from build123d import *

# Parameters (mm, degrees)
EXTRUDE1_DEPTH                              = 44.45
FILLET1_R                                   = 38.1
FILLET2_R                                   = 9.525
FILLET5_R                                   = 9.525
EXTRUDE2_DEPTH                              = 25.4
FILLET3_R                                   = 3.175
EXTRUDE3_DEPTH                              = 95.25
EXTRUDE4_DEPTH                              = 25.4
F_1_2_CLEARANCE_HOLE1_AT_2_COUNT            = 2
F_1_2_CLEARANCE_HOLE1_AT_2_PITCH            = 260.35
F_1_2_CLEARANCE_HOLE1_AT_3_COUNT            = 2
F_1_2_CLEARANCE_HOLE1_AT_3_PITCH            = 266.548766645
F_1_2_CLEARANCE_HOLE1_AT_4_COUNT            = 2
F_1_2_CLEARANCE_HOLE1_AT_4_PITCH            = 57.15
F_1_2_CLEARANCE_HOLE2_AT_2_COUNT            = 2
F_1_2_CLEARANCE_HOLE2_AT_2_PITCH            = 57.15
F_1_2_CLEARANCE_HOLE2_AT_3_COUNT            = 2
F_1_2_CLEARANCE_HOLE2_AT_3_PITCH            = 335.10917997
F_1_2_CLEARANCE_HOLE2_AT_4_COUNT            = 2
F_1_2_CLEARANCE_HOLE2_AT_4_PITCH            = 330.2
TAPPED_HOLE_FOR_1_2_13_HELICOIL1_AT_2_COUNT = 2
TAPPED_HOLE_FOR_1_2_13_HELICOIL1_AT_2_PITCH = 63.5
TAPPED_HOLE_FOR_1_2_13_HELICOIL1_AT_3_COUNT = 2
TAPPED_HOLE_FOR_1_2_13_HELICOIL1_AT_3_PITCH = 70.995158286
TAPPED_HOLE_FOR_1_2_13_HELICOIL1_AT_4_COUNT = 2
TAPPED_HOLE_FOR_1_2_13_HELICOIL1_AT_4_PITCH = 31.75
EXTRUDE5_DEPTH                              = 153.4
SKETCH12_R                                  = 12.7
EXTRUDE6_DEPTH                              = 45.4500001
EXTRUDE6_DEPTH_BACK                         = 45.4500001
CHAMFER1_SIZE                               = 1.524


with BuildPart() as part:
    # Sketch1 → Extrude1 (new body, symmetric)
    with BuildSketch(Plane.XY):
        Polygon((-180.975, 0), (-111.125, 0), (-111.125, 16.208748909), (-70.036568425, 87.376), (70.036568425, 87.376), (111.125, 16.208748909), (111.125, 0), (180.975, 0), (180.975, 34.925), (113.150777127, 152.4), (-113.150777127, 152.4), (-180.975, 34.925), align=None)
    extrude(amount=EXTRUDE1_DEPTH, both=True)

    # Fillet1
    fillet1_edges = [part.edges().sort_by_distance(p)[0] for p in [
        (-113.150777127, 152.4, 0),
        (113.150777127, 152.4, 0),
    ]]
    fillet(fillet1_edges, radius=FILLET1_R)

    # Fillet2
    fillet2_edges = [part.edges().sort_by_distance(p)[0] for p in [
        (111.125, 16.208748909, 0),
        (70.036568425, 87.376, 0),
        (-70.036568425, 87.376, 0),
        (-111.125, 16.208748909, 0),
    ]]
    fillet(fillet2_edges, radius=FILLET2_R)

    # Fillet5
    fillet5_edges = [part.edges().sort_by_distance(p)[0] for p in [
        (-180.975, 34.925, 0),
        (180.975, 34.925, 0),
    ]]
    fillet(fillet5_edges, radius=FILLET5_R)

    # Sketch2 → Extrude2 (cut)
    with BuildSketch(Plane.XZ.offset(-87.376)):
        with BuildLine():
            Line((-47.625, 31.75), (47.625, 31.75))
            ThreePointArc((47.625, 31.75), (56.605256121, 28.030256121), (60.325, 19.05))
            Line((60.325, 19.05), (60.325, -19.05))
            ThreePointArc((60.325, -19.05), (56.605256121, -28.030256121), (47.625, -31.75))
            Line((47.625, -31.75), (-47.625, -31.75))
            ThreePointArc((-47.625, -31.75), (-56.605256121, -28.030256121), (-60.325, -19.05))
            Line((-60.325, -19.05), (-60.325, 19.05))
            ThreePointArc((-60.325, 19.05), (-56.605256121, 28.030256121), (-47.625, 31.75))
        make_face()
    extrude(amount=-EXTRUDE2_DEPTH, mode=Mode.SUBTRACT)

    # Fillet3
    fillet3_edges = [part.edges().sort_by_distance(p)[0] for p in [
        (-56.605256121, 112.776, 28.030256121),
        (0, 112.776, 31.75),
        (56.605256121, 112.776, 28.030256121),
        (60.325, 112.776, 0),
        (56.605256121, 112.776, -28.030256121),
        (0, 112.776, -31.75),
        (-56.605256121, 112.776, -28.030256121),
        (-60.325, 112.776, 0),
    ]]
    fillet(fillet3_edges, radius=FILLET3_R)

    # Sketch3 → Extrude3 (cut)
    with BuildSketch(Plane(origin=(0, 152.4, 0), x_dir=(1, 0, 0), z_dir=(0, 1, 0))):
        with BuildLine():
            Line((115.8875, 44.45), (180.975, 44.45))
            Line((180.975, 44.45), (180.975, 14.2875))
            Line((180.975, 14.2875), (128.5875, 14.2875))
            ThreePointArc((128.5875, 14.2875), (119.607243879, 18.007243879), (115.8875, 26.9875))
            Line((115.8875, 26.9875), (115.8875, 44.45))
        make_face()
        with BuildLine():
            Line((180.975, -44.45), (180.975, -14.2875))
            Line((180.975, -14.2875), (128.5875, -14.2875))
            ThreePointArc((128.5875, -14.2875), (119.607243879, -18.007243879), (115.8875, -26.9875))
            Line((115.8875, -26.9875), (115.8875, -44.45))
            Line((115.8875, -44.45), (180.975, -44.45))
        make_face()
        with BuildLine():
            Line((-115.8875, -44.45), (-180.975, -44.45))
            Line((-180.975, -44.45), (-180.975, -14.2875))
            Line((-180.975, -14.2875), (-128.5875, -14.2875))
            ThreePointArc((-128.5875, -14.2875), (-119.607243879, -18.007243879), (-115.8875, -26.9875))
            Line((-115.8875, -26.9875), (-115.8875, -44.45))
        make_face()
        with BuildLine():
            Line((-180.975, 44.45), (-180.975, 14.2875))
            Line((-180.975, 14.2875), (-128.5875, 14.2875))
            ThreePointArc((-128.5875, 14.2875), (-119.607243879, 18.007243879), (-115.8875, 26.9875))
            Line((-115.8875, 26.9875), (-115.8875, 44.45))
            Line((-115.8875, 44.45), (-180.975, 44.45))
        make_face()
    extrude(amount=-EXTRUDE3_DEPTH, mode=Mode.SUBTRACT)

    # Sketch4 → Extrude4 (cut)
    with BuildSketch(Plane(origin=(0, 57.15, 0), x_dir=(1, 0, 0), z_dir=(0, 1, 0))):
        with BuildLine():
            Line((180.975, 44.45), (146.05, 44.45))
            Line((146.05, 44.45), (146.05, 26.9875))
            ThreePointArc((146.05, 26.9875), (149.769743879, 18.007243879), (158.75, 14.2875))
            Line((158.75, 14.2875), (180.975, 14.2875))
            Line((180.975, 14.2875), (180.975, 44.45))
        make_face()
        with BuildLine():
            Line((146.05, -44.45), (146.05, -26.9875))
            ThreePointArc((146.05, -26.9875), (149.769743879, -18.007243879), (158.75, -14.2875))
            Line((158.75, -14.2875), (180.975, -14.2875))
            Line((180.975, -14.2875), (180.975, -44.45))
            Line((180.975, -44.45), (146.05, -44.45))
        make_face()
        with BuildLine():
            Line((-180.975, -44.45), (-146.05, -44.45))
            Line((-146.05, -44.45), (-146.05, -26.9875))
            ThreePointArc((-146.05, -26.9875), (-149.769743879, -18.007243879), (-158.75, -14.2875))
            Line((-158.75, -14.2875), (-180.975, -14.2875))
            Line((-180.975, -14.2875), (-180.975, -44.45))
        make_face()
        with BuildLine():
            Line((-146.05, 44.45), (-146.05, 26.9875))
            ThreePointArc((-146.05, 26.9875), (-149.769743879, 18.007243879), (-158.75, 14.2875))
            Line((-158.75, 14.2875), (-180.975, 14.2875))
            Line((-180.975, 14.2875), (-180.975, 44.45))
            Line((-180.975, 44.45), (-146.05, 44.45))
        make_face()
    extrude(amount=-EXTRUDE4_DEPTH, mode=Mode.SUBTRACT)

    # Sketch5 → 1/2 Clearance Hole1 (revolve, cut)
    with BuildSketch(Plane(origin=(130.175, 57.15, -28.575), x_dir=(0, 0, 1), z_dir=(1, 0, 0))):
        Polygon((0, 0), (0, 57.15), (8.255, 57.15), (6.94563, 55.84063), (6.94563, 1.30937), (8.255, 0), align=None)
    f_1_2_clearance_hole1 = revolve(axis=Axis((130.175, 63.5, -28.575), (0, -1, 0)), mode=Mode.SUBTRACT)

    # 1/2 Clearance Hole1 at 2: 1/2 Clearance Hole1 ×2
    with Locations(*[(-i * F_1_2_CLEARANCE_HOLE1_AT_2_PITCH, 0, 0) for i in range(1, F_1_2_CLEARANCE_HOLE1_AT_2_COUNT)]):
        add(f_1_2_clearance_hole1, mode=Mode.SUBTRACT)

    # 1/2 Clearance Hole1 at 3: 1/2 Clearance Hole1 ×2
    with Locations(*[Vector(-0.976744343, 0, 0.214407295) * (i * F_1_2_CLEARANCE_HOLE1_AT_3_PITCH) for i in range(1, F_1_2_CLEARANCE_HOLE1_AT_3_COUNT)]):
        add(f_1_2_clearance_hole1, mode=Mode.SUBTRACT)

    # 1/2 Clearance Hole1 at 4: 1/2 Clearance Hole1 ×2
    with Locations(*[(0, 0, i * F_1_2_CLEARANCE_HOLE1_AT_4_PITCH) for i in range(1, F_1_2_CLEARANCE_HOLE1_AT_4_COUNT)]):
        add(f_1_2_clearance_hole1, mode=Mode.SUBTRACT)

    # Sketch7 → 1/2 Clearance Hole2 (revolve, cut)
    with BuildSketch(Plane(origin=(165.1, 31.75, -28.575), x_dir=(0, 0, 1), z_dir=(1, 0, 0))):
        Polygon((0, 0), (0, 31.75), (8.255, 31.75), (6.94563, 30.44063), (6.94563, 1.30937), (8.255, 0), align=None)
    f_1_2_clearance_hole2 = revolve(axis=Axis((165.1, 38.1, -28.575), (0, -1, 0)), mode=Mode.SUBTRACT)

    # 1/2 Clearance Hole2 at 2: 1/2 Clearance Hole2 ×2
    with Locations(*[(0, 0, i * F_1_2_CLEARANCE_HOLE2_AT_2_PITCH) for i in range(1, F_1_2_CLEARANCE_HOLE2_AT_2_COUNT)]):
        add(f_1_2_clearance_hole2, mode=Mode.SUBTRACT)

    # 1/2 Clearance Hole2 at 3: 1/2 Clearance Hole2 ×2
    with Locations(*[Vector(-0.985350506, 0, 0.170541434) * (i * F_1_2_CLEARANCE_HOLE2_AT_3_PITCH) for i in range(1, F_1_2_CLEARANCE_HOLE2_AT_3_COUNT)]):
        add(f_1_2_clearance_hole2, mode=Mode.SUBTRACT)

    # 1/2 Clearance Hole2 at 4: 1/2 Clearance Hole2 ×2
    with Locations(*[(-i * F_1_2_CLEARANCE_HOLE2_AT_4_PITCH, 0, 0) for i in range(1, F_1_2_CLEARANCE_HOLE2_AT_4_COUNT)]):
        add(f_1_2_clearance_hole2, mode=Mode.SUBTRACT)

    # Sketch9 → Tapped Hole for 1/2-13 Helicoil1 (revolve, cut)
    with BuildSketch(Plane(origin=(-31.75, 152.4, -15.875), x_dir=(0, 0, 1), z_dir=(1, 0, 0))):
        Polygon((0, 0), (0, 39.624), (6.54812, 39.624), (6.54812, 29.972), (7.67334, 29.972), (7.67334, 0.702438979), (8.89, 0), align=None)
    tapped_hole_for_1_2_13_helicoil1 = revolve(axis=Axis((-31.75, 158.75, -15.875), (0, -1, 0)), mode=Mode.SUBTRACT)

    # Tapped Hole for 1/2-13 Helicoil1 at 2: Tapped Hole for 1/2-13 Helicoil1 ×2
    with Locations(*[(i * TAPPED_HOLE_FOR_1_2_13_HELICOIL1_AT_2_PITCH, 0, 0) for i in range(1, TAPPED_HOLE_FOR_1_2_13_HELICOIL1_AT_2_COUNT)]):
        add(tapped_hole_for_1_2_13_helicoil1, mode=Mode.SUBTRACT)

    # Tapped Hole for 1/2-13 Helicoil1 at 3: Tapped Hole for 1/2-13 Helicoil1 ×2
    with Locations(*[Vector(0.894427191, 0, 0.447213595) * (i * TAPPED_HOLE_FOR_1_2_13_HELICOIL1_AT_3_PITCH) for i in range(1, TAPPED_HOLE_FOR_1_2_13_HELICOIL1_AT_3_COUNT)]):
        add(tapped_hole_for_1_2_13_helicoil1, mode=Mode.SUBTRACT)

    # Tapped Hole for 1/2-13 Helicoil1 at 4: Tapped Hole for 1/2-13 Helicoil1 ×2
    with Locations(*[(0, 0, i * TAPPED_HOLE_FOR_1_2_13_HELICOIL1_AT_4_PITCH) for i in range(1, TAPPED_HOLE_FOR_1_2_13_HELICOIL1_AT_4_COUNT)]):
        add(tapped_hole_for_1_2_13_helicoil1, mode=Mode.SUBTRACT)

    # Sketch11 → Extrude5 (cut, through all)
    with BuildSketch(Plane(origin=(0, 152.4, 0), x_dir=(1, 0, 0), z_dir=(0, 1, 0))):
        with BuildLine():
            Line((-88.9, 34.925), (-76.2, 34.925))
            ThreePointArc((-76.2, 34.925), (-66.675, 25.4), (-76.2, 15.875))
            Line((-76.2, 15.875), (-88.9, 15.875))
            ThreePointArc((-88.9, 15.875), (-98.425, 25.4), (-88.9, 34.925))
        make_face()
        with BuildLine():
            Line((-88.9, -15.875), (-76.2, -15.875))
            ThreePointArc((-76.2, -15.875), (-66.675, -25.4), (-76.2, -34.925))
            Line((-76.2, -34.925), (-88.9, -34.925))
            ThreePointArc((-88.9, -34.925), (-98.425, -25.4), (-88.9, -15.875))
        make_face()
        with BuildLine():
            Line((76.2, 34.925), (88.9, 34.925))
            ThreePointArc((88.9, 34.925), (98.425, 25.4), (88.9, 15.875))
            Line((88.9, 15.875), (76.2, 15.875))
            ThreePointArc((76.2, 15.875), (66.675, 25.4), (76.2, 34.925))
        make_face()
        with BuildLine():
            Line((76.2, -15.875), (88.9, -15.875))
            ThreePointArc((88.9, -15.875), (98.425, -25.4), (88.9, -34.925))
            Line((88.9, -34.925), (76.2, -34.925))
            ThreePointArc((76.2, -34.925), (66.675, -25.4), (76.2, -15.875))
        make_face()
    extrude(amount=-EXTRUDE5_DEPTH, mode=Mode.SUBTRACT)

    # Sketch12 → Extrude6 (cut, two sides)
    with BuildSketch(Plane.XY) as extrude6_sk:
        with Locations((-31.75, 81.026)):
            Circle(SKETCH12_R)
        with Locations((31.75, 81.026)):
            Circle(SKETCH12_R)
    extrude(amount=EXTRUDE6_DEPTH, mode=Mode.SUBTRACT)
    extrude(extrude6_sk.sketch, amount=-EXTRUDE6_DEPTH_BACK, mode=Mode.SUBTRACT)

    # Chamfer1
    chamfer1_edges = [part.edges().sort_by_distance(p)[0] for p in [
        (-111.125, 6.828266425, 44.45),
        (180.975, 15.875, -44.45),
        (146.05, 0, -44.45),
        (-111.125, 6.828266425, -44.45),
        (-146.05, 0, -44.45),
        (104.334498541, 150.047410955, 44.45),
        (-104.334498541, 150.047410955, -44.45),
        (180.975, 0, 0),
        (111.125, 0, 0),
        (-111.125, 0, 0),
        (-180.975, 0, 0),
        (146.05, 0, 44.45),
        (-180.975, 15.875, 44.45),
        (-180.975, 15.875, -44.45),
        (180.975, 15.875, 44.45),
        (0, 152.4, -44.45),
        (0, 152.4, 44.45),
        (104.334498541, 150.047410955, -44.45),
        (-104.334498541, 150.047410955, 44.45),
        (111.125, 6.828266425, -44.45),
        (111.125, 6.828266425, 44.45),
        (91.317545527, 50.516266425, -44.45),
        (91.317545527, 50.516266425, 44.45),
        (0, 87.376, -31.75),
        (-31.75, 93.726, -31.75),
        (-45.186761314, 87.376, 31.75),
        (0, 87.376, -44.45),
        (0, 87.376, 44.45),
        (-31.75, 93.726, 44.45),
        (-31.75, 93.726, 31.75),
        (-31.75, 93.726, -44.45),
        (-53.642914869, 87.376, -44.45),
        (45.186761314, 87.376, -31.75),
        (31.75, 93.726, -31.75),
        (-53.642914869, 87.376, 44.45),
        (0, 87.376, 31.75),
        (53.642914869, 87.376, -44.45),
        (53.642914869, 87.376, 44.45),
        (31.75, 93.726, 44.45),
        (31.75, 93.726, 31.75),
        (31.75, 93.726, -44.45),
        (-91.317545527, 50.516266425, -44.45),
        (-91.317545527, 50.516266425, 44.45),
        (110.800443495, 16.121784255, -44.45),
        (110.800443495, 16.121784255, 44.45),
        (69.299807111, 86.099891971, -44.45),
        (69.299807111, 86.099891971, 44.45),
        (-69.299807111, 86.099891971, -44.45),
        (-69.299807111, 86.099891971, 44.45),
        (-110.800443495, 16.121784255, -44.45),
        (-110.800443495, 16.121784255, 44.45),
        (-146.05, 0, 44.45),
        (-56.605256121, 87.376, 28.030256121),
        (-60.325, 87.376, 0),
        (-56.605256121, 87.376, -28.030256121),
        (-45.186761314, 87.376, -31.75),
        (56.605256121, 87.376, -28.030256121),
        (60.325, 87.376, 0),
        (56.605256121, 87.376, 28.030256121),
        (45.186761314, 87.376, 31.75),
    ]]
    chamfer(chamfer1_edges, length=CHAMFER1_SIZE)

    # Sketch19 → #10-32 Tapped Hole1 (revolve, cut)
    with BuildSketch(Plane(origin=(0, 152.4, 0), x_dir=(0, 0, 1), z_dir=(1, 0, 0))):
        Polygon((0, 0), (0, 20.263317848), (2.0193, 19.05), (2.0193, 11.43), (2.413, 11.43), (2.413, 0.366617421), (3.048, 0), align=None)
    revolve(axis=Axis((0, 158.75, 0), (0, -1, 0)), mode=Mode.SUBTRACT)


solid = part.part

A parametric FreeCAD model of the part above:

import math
import FreeCAD as App
import Part
import Sketcher

V = App.Vector
Q = App.Units.Quantity


def edges_at(feature, points):
    """Names of the edges that pass closest to the given points."""
    edges = feature.Shape.Edges
    near = lambda p: min(range(len(edges)), key=lambda i: edges[i].distToShape(Part.Vertex(*p))[0])
    return sorted({f"Edge{near(p) + 1}" for p in points})


def add_polygon(sketch, points):
    """Adds a closed chain of lines whose ends are joined by coincident constraints."""
    first, n = sketch.GeometryCount, len(points)
    for a, b in zip(points, points[1:] + points[:1]):
        sketch.addGeometry(Part.LineSegment(App.Vector(*a, 0), App.Vector(*b, 0)), False)
    for i in range(n):
        sketch.addConstraint(Sketcher.Constraint("Coincident", first + i, 2, first + (i + 1) % n, 1))

doc = App.newDocument("Part")
body = doc.addObject("PartDesign::Body", "Body")

# Sketch on XY plane
sketch1 = doc.addObject("Sketcher::SketchObject", "Sketch")
body.addObject(sketch1)
sketch1.AttachmentSupport = (doc.XY_Plane, [""])
sketch1.MapMode = "FlatFace"
add_polygon(sketch1, [(-181, 0), (-111, 0), (-111, 16), (-70, 87), (70, 87), (111, 16), (111, 0), (181, 0), (181, 35), (113, 152), (-113, 152), (-181, 35)])  # lines 0-11
sketch1.addConstraint([
    Sketcher.Constraint("Horizontal", 0),
    Sketcher.Constraint("Vertical", 1),
    Sketcher.Constraint("Horizontal", 3),
    Sketcher.Constraint("Vertical", 5),
    Sketcher.Constraint("Horizontal", 6),
    Sketcher.Constraint("Vertical", 7),
    Sketcher.Constraint("Horizontal", 9),
    Sketcher.Constraint("Vertical", 11),
    Sketcher.Constraint("Symmetric", 0, 2, 5, 2, -1, 1),
    Sketcher.Constraint("Symmetric", 7, 2, 10, 2, -2),
    Sketcher.Constraint("PointOnObject", 0, 2, -1),
    Sketcher.Constraint("Parallel", 4, 8),
    Sketcher.Constraint("Parallel", 2, 10),
    Sketcher.Constraint("Horizontal", 1, 2, 4, 2),
    Sketcher.Constraint("Equal", 2, 4),
    Sketcher.Constraint("DistanceY", -1, 1, 8, 2, Q("6 in")),
    Sketcher.Constraint("Angle", 2, Q("60 deg")),
    Sketcher.Constraint("DistanceX", 0, 1, 0, 2, Q("2.75 in")),
    Sketcher.Constraint("DistanceX", 0, 2, 6, 2, Q("11.5 in")),
    Sketcher.Constraint("DistanceY", 7, 1, 7, 2, Q("1.375 in")),
    Sketcher.Constraint("DistanceY", -1, 1, 2, 2, Q("3.44 in")),
    Sketcher.Constraint("DistanceY", 1, 1, 1, 2, Q("16.208749 mm")),
])
pad1 = doc.addObject("PartDesign::Pad", "Pad")
body.addObject(pad1)
pad1.Profile = sketch1
pad1.Length = Q("3.5 in")
pad1.Midplane = True
doc.recompute()

fillet = doc.addObject("PartDesign::Fillet", "Fillet")
body.addObject(fillet)
fillet.Base = (pad1, edges_at(pad1, [(-113.151, 152.4, 0), (113.151, 152.4, 0)]))
fillet.Radius = Q("1.5 in")
doc.recompute()

fillet2 = doc.addObject("PartDesign::Fillet", "Fillet001")
body.addObject(fillet2)
fillet2.Base = (fillet, edges_at(fillet, [
    (111.125, 16.209, 0),
    (70.037, 87.376, 0),
    (-70.037, 87.376, 0),
    (-111.125, 16.209, 0),
]))
fillet2.Radius = Q("0.375 in")
doc.recompute()

fillet3 = doc.addObject("PartDesign::Fillet", "Fillet002")
body.addObject(fillet3)
fillet3.Base = (fillet2, edges_at(fillet2, [(-180.975, 34.925, 0), (180.975, 34.925, 0)]))
fillet3.Radius = Q("0.375 in")

# Sketch on XZ plane
sketch2 = doc.addObject("Sketcher::SketchObject", "Sketch001")
body.addObject(sketch2)
sketch2.AttachmentSupport = (doc.XZ_Plane, [""])
sketch2.MapMode = "FlatFace"
sketch2.AttachmentOffset = App.Placement(V(0, 0, -3.44 * 25.4), App.Rotation())
sketch2.addGeometry([
    Part.LineSegment(V(48, 32, 0), V(-48, 32, 0)),  # 0
    Part.ArcOfCircle(Part.Circle(V(-48, 19, 0), V(0, 0, 1), 13), math.radians(90), math.radians(180)),  # 1
    Part.LineSegment(V(-60, 19, 0), V(-60, -19, 0)),  # 2
    Part.ArcOfCircle(Part.Circle(V(-48, -19, 0), V(0, 0, 1), 13), math.radians(180), math.radians(270)),  # 3
    Part.LineSegment(V(-48, -32, 0), V(48, -32, 0)),  # 4
    Part.ArcOfCircle(Part.Circle(V(48, -19, 0), V(0, 0, 1), 13), math.radians(-90), math.radians(0)),  # 5
    Part.LineSegment(V(60, -19, 0), V(60, 19, 0)),  # 6
    Part.ArcOfCircle(Part.Circle(V(48, 19, 0), V(0, 0, 1), 13), math.radians(0), math.radians(90)),  # 7
], False)
sketch2.addConstraint([
    Sketcher.Constraint("Tangent", 0, 2, 1, 1),
    Sketcher.Constraint("Tangent", 1, 2, 2, 1),
    Sketcher.Constraint("Tangent", 2, 2, 3, 1),
    Sketcher.Constraint("Tangent", 3, 2, 4, 1),
    Sketcher.Constraint("Tangent", 4, 2, 5, 1),
    Sketcher.Constraint("Tangent", 5, 2, 6, 1),
    Sketcher.Constraint("Tangent", 6, 2, 7, 1),
    Sketcher.Constraint("Tangent", 7, 2, 0, 1),
    Sketcher.Constraint("Horizontal", 0),
    Sketcher.Constraint("Vertical", 2),
    Sketcher.Constraint("Horizontal", 4),
    Sketcher.Constraint("Vertical", 6),
    Sketcher.Constraint("Equal", 1, 3),
    Sketcher.Constraint("Equal", 3, 5),
    Sketcher.Constraint("Equal", 5, 7),
    Sketcher.Constraint("Symmetric", 1, 3, 5, 3, -1, 1),
    Sketcher.Constraint("Radius", 1, Q("0.5 in")),
    Sketcher.Constraint("DistanceY", 2, 2, 2, 1, Q("1.5 in")),
    Sketcher.Constraint("DistanceX", 0, 2, 0, 1, Q("3.75 in")),
])
pocket1 = doc.addObject("PartDesign::Pocket", "Pocket")
body.addObject(pocket1)
pocket1.Profile = sketch2
pocket1.Length = Q("1 in")
doc.recompute()

fillet4 = doc.addObject("PartDesign::Fillet", "Fillet003")
body.addObject(fillet4)
fillet4.Base = (pocket1, edges_at(pocket1, [
    (-56.605, 112.776, 28.03),
    (0, 112.776, 31.75),
    (56.605, 112.776, 28.03),
    (60.325, 112.776, 0),
    (56.605, 112.776, -28.03),
    (0, 112.776, -31.75),
    (-56.605, 112.776, -28.03),
    (-60.325, 112.776, 0),
]))
fillet4.Radius = Q("0.125 in")

# Sketch on XZ plane
sketch3 = doc.addObject("Sketcher::SketchObject", "Sketch002")
body.addObject(sketch3)
sketch3.AttachmentSupport = (doc.XZ_Plane, [""])
sketch3.MapMode = "FlatFace"
sketch3.AttachmentOffset = App.Placement(V(0, 0, -6 * 25.4), App.Rotation())
sketch3.addGeometry([
    Part.LineSegment(V(181, -44, 0), V(116, -44, 0)),  # 0
    Part.LineSegment(V(116, -44, 0), V(116, -27, 0)),  # 1
    Part.ArcOfCircle(Part.Circle(V(129, -27, 0), V(0, 0, 1), 13), math.radians(90), math.radians(180)),  # 2
    Part.LineSegment(V(129, -14, 0), V(181, -14, 0)),  # 3
    Part.LineSegment(V(181, -14, 0), V(181, -44, 0)),  # 4
    Part.LineSegment(V(181, 44, 0), V(181, 14, 0)),  # 5
    Part.LineSegment(V(181, 14, 0), V(129, 14, 0)),  # 6
    Part.ArcOfCircle(Part.Circle(V(129, 27, 0), V(0, 0, 1), 13), math.radians(180), math.radians(270)),  # 7
    Part.LineSegment(V(116, 27, 0), V(116, 44, 0)),  # 8
    Part.LineSegment(V(116, 44, 0), V(181, 44, 0)),  # 9
    Part.LineSegment(V(-181, 44, 0), V(-116, 44, 0)),  # 10
    Part.LineSegment(V(-116, 44, 0), V(-116, 27, 0)),  # 11
    Part.ArcOfCircle(Part.Circle(V(-129, 27, 0), V(0, 0, 1), 13), math.radians(-90), math.radians(0)),  # 12
    Part.LineSegment(V(-129, 14, 0), V(-181, 14, 0)),  # 13
    Part.LineSegment(V(-181, 14, 0), V(-181, 44, 0)),  # 14
    Part.LineSegment(V(-181, -44, 0), V(-181, -14, 0)),  # 15
    Part.LineSegment(V(-181, -14, 0), V(-129, -14, 0)),  # 16
    Part.ArcOfCircle(Part.Circle(V(-129, -27, 0), V(0, 0, 1), 13), math.radians(0), math.radians(90)),  # 17
    Part.LineSegment(V(-116, -27, 0), V(-116, -44, 0)),  # 18
    Part.LineSegment(V(-116, -44, 0), V(-181, -44, 0)),  # 19
], False)
sketch3.addConstraint([
    Sketcher.Constraint("Coincident", 0, 2, 1, 1),
    Sketcher.Constraint("Tangent", 1, 2, 2, 2),
    Sketcher.Constraint("Tangent", 2, 1, 3, 1),
    Sketcher.Constraint("Coincident", 3, 2, 4, 1),
    Sketcher.Constraint("Coincident", 4, 2, 0, 1),
    Sketcher.Constraint("Coincident", 5, 2, 6, 1),
    Sketcher.Constraint("Tangent", 6, 2, 7, 2),
    Sketcher.Constraint("Tangent", 7, 1, 8, 1),
    Sketcher.Constraint("Coincident", 8, 2, 9, 1),
    Sketcher.Constraint("Coincident", 9, 2, 5, 1),
    Sketcher.Constraint("Coincident", 10, 2, 11, 1),
    Sketcher.Constraint("Tangent", 11, 2, 12, 2),
    Sketcher.Constraint("Tangent", 12, 1, 13, 1),
    Sketcher.Constraint("Coincident", 13, 2, 14, 1),
    Sketcher.Constraint("Coincident", 14, 2, 10, 1),
    Sketcher.Constraint("Coincident", 15, 2, 16, 1),
    Sketcher.Constraint("Tangent", 16, 2, 17, 2),
    Sketcher.Constraint("Tangent", 17, 1, 18, 1),
    Sketcher.Constraint("Coincident", 18, 2, 19, 1),
    Sketcher.Constraint("Coincident", 19, 2, 15, 1),
    Sketcher.Constraint("Horizontal", 0),
    Sketcher.Constraint("Vertical", 1),
    Sketcher.Constraint("Horizontal", 3),
    Sketcher.Constraint("Vertical", 4),
    Sketcher.Constraint("Vertical", 5),
    Sketcher.Constraint("Horizontal", 6),
    Sketcher.Constraint("Vertical", 8),
    Sketcher.Constraint("Horizontal", 9),
    Sketcher.Constraint("Horizontal", 10),
    Sketcher.Constraint("Vertical", 11),
    Sketcher.Constraint("Horizontal", 13),
    Sketcher.Constraint("Vertical", 14),
    Sketcher.Constraint("Vertical", 15),
    Sketcher.Constraint("Horizontal", 16),
    Sketcher.Constraint("Vertical", 18),
    Sketcher.Constraint("Horizontal", 19),
    Sketcher.Constraint("Equal", 2, 7),
    Sketcher.Constraint("Equal", 7, 12),
    Sketcher.Constraint("Equal", 12, 17),
    Sketcher.Constraint("Symmetric", 2, 3, 12, 3, -1, 1),
    Sketcher.Constraint("Symmetric", 7, 3, 17, 3, -1, 1),
    Sketcher.Constraint("Symmetric", 4, 2, 14, 2, -1, 1),
    Sketcher.Constraint("Symmetric", 9, 2, 19, 2, -1, 1),
    Sketcher.Constraint("Symmetric", 7, 3, 12, 3, -2),
    Sketcher.Constraint("Symmetric", 9, 2, 14, 2, -2),
    Sketcher.Constraint("Radius", 2, Q("0.5 in")),
    Sketcher.Constraint("DistanceX", 0, 2, 0, 1, Q("2.5625 in")),
    Sketcher.Constraint("DistanceY", 1, 1, 1, 2, Q("0.6875 in")),
    Sketcher.Constraint("DistanceY", 0, 2, -1, 1, Q("1.75 in")),
    Sketcher.Constraint("DistanceX", -1, 1, 2, 3, Q("5.0625 in")),
])
pocket2 = doc.addObject("PartDesign::Pocket", "Pocket001")
body.addObject(pocket2)
pocket2.Profile = sketch3
pocket2.Length = Q("3.75 in")
pocket2.Reversed = True

# Sketch on XZ plane
sketch4 = doc.addObject("Sketcher::SketchObject", "Sketch003")
body.addObject(sketch4)
sketch4.AttachmentSupport = (doc.XZ_Plane, [""])
sketch4.MapMode = "FlatFace"
sketch4.AttachmentOffset = App.Placement(V(0, 0, -2.25 * 25.4), App.Rotation())
sketch4.addGeometry([
    Part.LineSegment(V(181, -44, 0), V(146, -44, 0)),  # 0
    Part.LineSegment(V(146, -44, 0), V(146, -27, 0)),  # 1
    Part.ArcOfCircle(Part.Circle(V(159, -27, 0), V(0, 0, 1), 13), math.radians(90), math.radians(180)),  # 2
    Part.LineSegment(V(159, -14, 0), V(181, -14, 0)),  # 3
    Part.LineSegment(V(181, -14, 0), V(181, -44, 0)),  # 4
    Part.LineSegment(V(146, 27, 0), V(146, 44, 0)),  # 5
    Part.LineSegment(V(146, 44, 0), V(181, 44, 0)),  # 6
    Part.LineSegment(V(181, 44, 0), V(181, 14, 0)),  # 7
    Part.LineSegment(V(181, 14, 0), V(159, 14, 0)),  # 8
    Part.ArcOfCircle(Part.Circle(V(159, 27, 0), V(0, 0, 1), 13), math.radians(180), math.radians(270)),  # 9
    Part.LineSegment(V(-181, 44, 0), V(-146, 44, 0)),  # 10
    Part.LineSegment(V(-146, 44, 0), V(-146, 27, 0)),  # 11
    Part.ArcOfCircle(Part.Circle(V(-159, 27, 0), V(0, 0, 1), 13), math.radians(-90), math.radians(0)),  # 12
    Part.LineSegment(V(-159, 14, 0), V(-181, 14, 0)),  # 13
    Part.LineSegment(V(-181, 14, 0), V(-181, 44, 0)),  # 14
    Part.LineSegment(V(-146, -27, 0), V(-146, -44, 0)),  # 15
    Part.LineSegment(V(-146, -44, 0), V(-181, -44, 0)),  # 16
    Part.LineSegment(V(-181, -44, 0), V(-181, -14, 0)),  # 17
    Part.LineSegment(V(-181, -14, 0), V(-159, -14, 0)),  # 18
    Part.ArcOfCircle(Part.Circle(V(-159, -27, 0), V(0, 0, 1), 13), math.radians(0), math.radians(90)),  # 19
], False)
sketch4.addConstraint([
    Sketcher.Constraint("Coincident", 0, 2, 1, 1),
    Sketcher.Constraint("Tangent", 1, 2, 2, 2),
    Sketcher.Constraint("Tangent", 2, 1, 3, 1),
    Sketcher.Constraint("Coincident", 3, 2, 4, 1),
    Sketcher.Constraint("Coincident", 4, 2, 0, 1),
    Sketcher.Constraint("Coincident", 5, 2, 6, 1),
    Sketcher.Constraint("Coincident", 6, 2, 7, 1),
    Sketcher.Constraint("Coincident", 7, 2, 8, 1),
    Sketcher.Constraint("Tangent", 8, 2, 9, 2),
    Sketcher.Constraint("Tangent", 9, 1, 5, 1),
    Sketcher.Constraint("Coincident", 10, 2, 11, 1),
    Sketcher.Constraint("Tangent", 11, 2, 12, 2),
    Sketcher.Constraint("Tangent", 12, 1, 13, 1),
    Sketcher.Constraint("Coincident", 13, 2, 14, 1),
    Sketcher.Constraint("Coincident", 14, 2, 10, 1),
    Sketcher.Constraint("Coincident", 15, 2, 16, 1),
    Sketcher.Constraint("Coincident", 16, 2, 17, 1),
    Sketcher.Constraint("Coincident", 17, 2, 18, 1),
    Sketcher.Constraint("Tangent", 18, 2, 19, 2),
    Sketcher.Constraint("Tangent", 19, 1, 15, 1),
    Sketcher.Constraint("Horizontal", 0),
    Sketcher.Constraint("Vertical", 1),
    Sketcher.Constraint("Horizontal", 3),
    Sketcher.Constraint("Vertical", 4),
    Sketcher.Constraint("Vertical", 5),
    Sketcher.Constraint("Horizontal", 6),
    Sketcher.Constraint("Vertical", 7),
    Sketcher.Constraint("Horizontal", 8),
    Sketcher.Constraint("Horizontal", 10),
    Sketcher.Constraint("Vertical", 11),
    Sketcher.Constraint("Horizontal", 13),
    Sketcher.Constraint("Vertical", 14),
    Sketcher.Constraint("Vertical", 15),
    Sketcher.Constraint("Horizontal", 16),
    Sketcher.Constraint("Vertical", 17),
    Sketcher.Constraint("Horizontal", 18),
    Sketcher.Constraint("Equal", 2, 9),
    Sketcher.Constraint("Equal", 9, 12),
    Sketcher.Constraint("Equal", 12, 19),
    Sketcher.Constraint("Symmetric", 2, 3, 12, 3, -1, 1),
    Sketcher.Constraint("Symmetric", 9, 3, 19, 3, -1, 1),
    Sketcher.Constraint("Symmetric", 4, 2, 14, 2, -1, 1),
    Sketcher.Constraint("Symmetric", 6, 2, 16, 2, -1, 1),
    Sketcher.Constraint("Symmetric", 9, 3, 12, 3, -2),
    Sketcher.Constraint("Symmetric", 6, 2, 14, 2, -2),
    Sketcher.Constraint("Radius", 2, Q("0.5 in")),
    Sketcher.Constraint("DistanceX", 19, 3, 0, 2, Q("12 in")),
    Sketcher.Constraint("DistanceX", 0, 2, 0, 1, Q("1.375 in")),
    Sketcher.Constraint("DistanceY", 1, 1, 1, 2, Q("0.6875 in")),
    Sketcher.Constraint("DistanceY", 0, 2, -1, 1, Q("1.75 in")),
])
pocket3 = doc.addObject("PartDesign::Pocket", "Pocket002")
body.addObject(pocket3)
pocket3.Profile = sketch4
pocket3.Length = Q("1 in")
pocket3.Reversed = True

# Sketch on YZ plane
sketch5 = doc.addObject("Sketcher::SketchObject", "Sketch004")
body.addObject(sketch5)
sketch5.AttachmentSupport = (doc.YZ_Plane, [""])
sketch5.MapMode = "FlatFace"
sketch5.AttachmentOffset = App.Placement(V(0, 0, 5.125 * 25.4), App.Rotation())
add_polygon(sketch5, [(0, -28.6), (57.1, -28.6), (57.1, -20.3), (55.8, -21.6), (1.3, -21.6), (0, -20.3)])  # lines 0-5
sketch5.addGeometry(Part.LineSegment(V(57.1, -28.6, 0), V(0, -28.6, 0)), True)  # axis
sketch5.addConstraint([
    Sketcher.Constraint("Horizontal", 0),
    Sketcher.Constraint("Vertical", 1),
    Sketcher.Constraint("Horizontal", 3),
    Sketcher.Constraint("Vertical", 5),
    Sketcher.Constraint("Horizontal", 6),
    Sketcher.Constraint("Coincident", 6, 1, 0, 2),
    Sketcher.Constraint("PointOnObject", 4, 2, -2),
    Sketcher.Constraint("PointOnObject", 6, 2, -2),
    Sketcher.Constraint("Perpendicular", 2, 4),
    Sketcher.Constraint("Horizontal", 1, 2, 4, 2),
    Sketcher.Constraint("Equal", 2, 4),
    Sketcher.Constraint("DistanceX", 0, 1, 0, 2, Q("2.25 in")),
    Sketcher.Constraint("DistanceY", 1, 2, -1, 1, Q("0.8 in")),
    Sketcher.Constraint("DistanceY", 1, 1, 1, 2, Q("0.325 in")),
    Sketcher.Constraint("DistanceX", 3, 2, 3, 1, Q("2.1469 in")),
])
groove = doc.addObject("PartDesign::Groove", "Groove")
body.addObject(groove)
groove.Profile = sketch5
groove.ReferenceAxis = (sketch5, ["Axis0"])
groove.Angle = 360
doc.recompute()

linearpattern = doc.addObject("PartDesign::LinearPattern", "LinearPattern")
body.addObject(linearpattern)
linearpattern.Originals = [groove]
linearpattern.Direction = (doc.X_Axis, [""])
linearpattern.Mode = "offset"
linearpattern.Offset = Q("10.25 in")
linearpattern.Occurrences = 2
linearpattern.Reversed = True
body.Tip = linearpattern
doc.recompute()

datumline = doc.addObject("PartDesign::Line", "DatumLine")
body.addObject(datumline)
datumline.Placement = App.Placement(V(0, 0, 0), App.Rotation(V(0, 0, 1), V(-0.976744343, 0, 0.214407295)))
linearpattern2 = doc.addObject("PartDesign::LinearPattern", "LinearPattern001")
body.addObject(linearpattern2)
linearpattern2.Originals = [groove]
linearpattern2.Direction = (datumline, [""])
linearpattern2.Mode = "offset"
linearpattern2.Offset = 266.548767
linearpattern2.Occurrences = 2
body.Tip = linearpattern2
doc.recompute()

linearpattern3 = doc.addObject("PartDesign::LinearPattern", "LinearPattern002")
body.addObject(linearpattern3)
linearpattern3.Originals = [groove]
linearpattern3.Direction = (doc.Z_Axis, [""])
linearpattern3.Mode = "offset"
linearpattern3.Offset = Q("2.25 in")
linearpattern3.Occurrences = 2
body.Tip = linearpattern3

# Sketch on YZ plane
sketch6 = doc.addObject("Sketcher::SketchObject", "Sketch005")
body.addObject(sketch6)
sketch6.AttachmentSupport = (doc.YZ_Plane, [""])
sketch6.MapMode = "FlatFace"
sketch6.AttachmentOffset = App.Placement(V(0, 0, 6.5 * 25.4), App.Rotation())
add_polygon(sketch6, [(0, -28.6), (31.8, -28.6), (31.8, -20.3), (30.4, -21.6), (1.3, -21.6), (0, -20.3)])  # lines 0-5
sketch6.addGeometry(Part.LineSegment(V(31.8, -28.6, 0), V(0, -28.6, 0)), True)  # axis
sketch6.addConstraint([
    Sketcher.Constraint("Horizontal", 0),
    Sketcher.Constraint("Vertical", 1),
    Sketcher.Constraint("Horizontal", 3),
    Sketcher.Constraint("Vertical", 5),
    Sketcher.Constraint("Horizontal", 6),
    Sketcher.Constraint("Coincident", 6, 1, 0, 2),
    Sketcher.Constraint("PointOnObject", 4, 2, -2),
    Sketcher.Constraint("PointOnObject", 6, 2, -2),
    Sketcher.Constraint("Perpendicular", 2, 4),
    Sketcher.Constraint("Horizontal", 1, 2, 4, 2),
    Sketcher.Constraint("Equal", 2, 4),
    Sketcher.Constraint("DistanceX", 0, 1, 0, 2, Q("1.25 in")),
    Sketcher.Constraint("DistanceY", 1, 2, -1, 1, Q("0.8 in")),
    Sketcher.Constraint("DistanceY", 1, 1, 1, 2, Q("0.325 in")),
    Sketcher.Constraint("DistanceX", 3, 2, 3, 1, Q("1.1469 in")),
])
groove2 = doc.addObject("PartDesign::Groove", "Groove001")
body.addObject(groove2)
groove2.Profile = sketch6
groove2.ReferenceAxis = (sketch6, ["Axis0"])
groove2.Angle = 360
doc.recompute()

linearpattern4 = doc.addObject("PartDesign::LinearPattern", "LinearPattern003")
body.addObject(linearpattern4)
linearpattern4.Originals = [groove2]
linearpattern4.Direction = (doc.Z_Axis, [""])
linearpattern4.Mode = "offset"
linearpattern4.Offset = Q("2.25 in")
linearpattern4.Occurrences = 2
body.Tip = linearpattern4
doc.recompute()

datumline2 = doc.addObject("PartDesign::Line", "DatumLine001")
body.addObject(datumline2)
datumline2.Placement = App.Placement(V(0, 0, 0), App.Rotation(V(0, 0, 1), V(-0.985350506, 0, 0.170541434)))
linearpattern5 = doc.addObject("PartDesign::LinearPattern", "LinearPattern004")
body.addObject(linearpattern5)
linearpattern5.Originals = [groove2]
linearpattern5.Direction = (datumline2, [""])
linearpattern5.Mode = "offset"
linearpattern5.Offset = 335.10918
linearpattern5.Occurrences = 2
body.Tip = linearpattern5
doc.recompute()

linearpattern6 = doc.addObject("PartDesign::LinearPattern", "LinearPattern005")
body.addObject(linearpattern6)
linearpattern6.Originals = [groove2]
linearpattern6.Direction = (doc.X_Axis, [""])
linearpattern6.Mode = "offset"
linearpattern6.Offset = Q("13 in")
linearpattern6.Occurrences = 2
linearpattern6.Reversed = True
body.Tip = linearpattern6

# Sketch on YZ plane
sketch7 = doc.addObject("Sketcher::SketchObject", "Sketch006")
body.addObject(sketch7)
sketch7.AttachmentSupport = (doc.YZ_Plane, [""])
sketch7.MapMode = "FlatFace"
sketch7.AttachmentOffset = App.Placement(V(0, 0, -1.25 * 25.4), App.Rotation())
add_polygon(sketch7, [(112.8, -15.9), (152.4, -15.9), (152.4, -7), (151.7, -8.2), (122.4, -8.2), (122.4, -9.3), (112.8, -9.3)])  # lines 0-6
sketch7.addGeometry(Part.LineSegment(V(152.4, -15.9, 0), V(112.8, -15.9, 0)), True)  # axis
sketch7.addConstraint([
    Sketcher.Constraint("Horizontal", 0),
    Sketcher.Constraint("Vertical", 1),
    Sketcher.Constraint("Horizontal", 3),
    Sketcher.Constraint("Vertical", 4),
    Sketcher.Constraint("Horizontal", 5),
    Sketcher.Constraint("Vertical", 6),
    Sketcher.Constraint("Horizontal", 7),
    Sketcher.Constraint("Coincident", 7, 1, 0, 2),
    Sketcher.Constraint("Vertical", 5, 2, 7, 2),
    Sketcher.Constraint("DistanceX", -1, 1, 0, 2, Q("6 in")),
    Sketcher.Constraint("Angle", 2, Q("-120 deg")),
    Sketcher.Constraint("DistanceX", 0, 1, 0, 2, Q("1.56 in")),
    Sketcher.Constraint("DistanceX", 5, 2, 5, 1, Q("0.38 in")),
    Sketcher.Constraint("DistanceY", 1, 1, 1, 2, Q("0.35 in")),
    Sketcher.Constraint("DistanceY", 4, 2, 4, 1, Q("0.0443 in")),
    Sketcher.Constraint("DistanceY", 6, 2, 6, 1, Q("0.2578 in")),
    Sketcher.Constraint("DistanceY", 0, 2, -1, 1, Q("0.625 in")),
])
groove3 = doc.addObject("PartDesign::Groove", "Groove002")
body.addObject(groove3)
groove3.Profile = sketch7
groove3.ReferenceAxis = (sketch7, ["Axis0"])
groove3.Angle = 360
doc.recompute()

linearpattern7 = doc.addObject("PartDesign::LinearPattern", "LinearPattern006")
body.addObject(linearpattern7)
linearpattern7.Originals = [groove3]
linearpattern7.Direction = (doc.X_Axis, [""])
linearpattern7.Mode = "offset"
linearpattern7.Offset = Q("2.5 in")
linearpattern7.Occurrences = 2
body.Tip = linearpattern7
doc.recompute()

datumline3 = doc.addObject("PartDesign::Line", "DatumLine002")
body.addObject(datumline3)
datumline3.Placement = App.Placement(V(0, 0, 0), App.Rotation(V(0, 0, 1), V(0.894427191, 0, 0.447213595)))
linearpattern8 = doc.addObject("PartDesign::LinearPattern", "LinearPattern007")
body.addObject(linearpattern8)
linearpattern8.Originals = [groove3]
linearpattern8.Direction = (datumline3, [""])
linearpattern8.Mode = "offset"
linearpattern8.Offset = 70.995158
linearpattern8.Occurrences = 2
body.Tip = linearpattern8
doc.recompute()

linearpattern9 = doc.addObject("PartDesign::LinearPattern", "LinearPattern008")
body.addObject(linearpattern9)
linearpattern9.Originals = [groove3]
linearpattern9.Direction = (doc.Z_Axis, [""])
linearpattern9.Mode = "offset"
linearpattern9.Offset = Q("1.25 in")
linearpattern9.Occurrences = 2
body.Tip = linearpattern9

# Sketch on XZ plane
sketch8 = doc.addObject("Sketcher::SketchObject", "Sketch007")
body.addObject(sketch8)
sketch8.AttachmentSupport = (doc.XZ_Plane, [""])
sketch8.MapMode = "FlatFace"
sketch8.AttachmentOffset = App.Placement(V(0, 0, -6 * 25.4), App.Rotation())
sketch8.addGeometry([
    Part.LineSegment(V(-76, -35, 0), V(-89, -35, 0)),  # 0
    Part.ArcOfCircle(Part.Circle(V(-89, -25, 0), V(0, 0, 1), 10), math.radians(90), math.radians(270)),  # 1
    Part.LineSegment(V(-89, -16, 0), V(-76, -16, 0)),  # 2
    Part.ArcOfCircle(Part.Circle(V(-76, -25, 0), V(0, 0, 1), 10), math.radians(-90), math.radians(90)),  # 3
    Part.LineSegment(V(-76, 16, 0), V(-89, 16, 0)),  # 4
    Part.ArcOfCircle(Part.Circle(V(-89, 25, 0), V(0, 0, 1), 10), math.radians(90), math.radians(270)),  # 5
    Part.LineSegment(V(-89, 35, 0), V(-76, 35, 0)),  # 6
    Part.ArcOfCircle(Part.Circle(V(-76, 25, 0), V(0, 0, 1), 10), math.radians(-90), math.radians(90)),  # 7
    Part.LineSegment(V(89, -35, 0), V(76, -35, 0)),  # 8
    Part.ArcOfCircle(Part.Circle(V(76, -25, 0), V(0, 0, 1), 10), math.radians(90), math.radians(270)),  # 9
    Part.LineSegment(V(76, -16, 0), V(89, -16, 0)),  # 10
    Part.ArcOfCircle(Part.Circle(V(89, -25, 0), V(0, 0, 1), 10), math.radians(-90), math.radians(90)),  # 11
    Part.LineSegment(V(89, 16, 0), V(76, 16, 0)),  # 12
    Part.ArcOfCircle(Part.Circle(V(76, 25, 0), V(0, 0, 1), 10), math.radians(90), math.radians(270)),  # 13
    Part.LineSegment(V(76, 35, 0), V(89, 35, 0)),  # 14
    Part.ArcOfCircle(Part.Circle(V(89, 25, 0), V(0, 0, 1), 10), math.radians(-90), math.radians(90)),  # 15
], False)
sketch8.addConstraint([
    Sketcher.Constraint("Tangent", 0, 2, 1, 2),
    Sketcher.Constraint("Tangent", 1, 1, 2, 1),
    Sketcher.Constraint("Tangent", 2, 2, 3, 2),
    Sketcher.Constraint("Tangent", 3, 1, 0, 1),
    Sketcher.Constraint("Tangent", 4, 2, 5, 2),
    Sketcher.Constraint("Tangent", 5, 1, 6, 1),
    Sketcher.Constraint("Tangent", 6, 2, 7, 2),
    Sketcher.Constraint("Tangent", 7, 1, 4, 1),
    Sketcher.Constraint("Tangent", 8, 2, 9, 2),
    Sketcher.Constraint("Tangent", 9, 1, 10, 1),
    Sketcher.Constraint("Tangent", 10, 2, 11, 2),
    Sketcher.Constraint("Tangent", 11, 1, 8, 1),
    Sketcher.Constraint("Tangent", 12, 2, 13, 2),
    Sketcher.Constraint("Tangent", 13, 1, 14, 1),
    Sketcher.Constraint("Tangent", 14, 2, 15, 2),
    Sketcher.Constraint("Tangent", 15, 1, 12, 1),
    Sketcher.Constraint("Horizontal", 0),
    Sketcher.Constraint("Horizontal", 2),
    Sketcher.Constraint("Horizontal", 4),
    Sketcher.Constraint("Horizontal", 6),
    Sketcher.Constraint("Horizontal", 8),
    Sketcher.Constraint("Horizontal", 10),
    Sketcher.Constraint("Horizontal", 12),
    Sketcher.Constraint("Horizontal", 14),
    Sketcher.Constraint("Equal", 3, 5),
    Sketcher.Constraint("Equal", 7, 9),
    Sketcher.Constraint("Equal", 11, 13),
    Sketcher.Constraint("Symmetric", 7, 3, 9, 3, -1, 1),
    Sketcher.Constraint("Symmetric", 3, 3, 13, 3, -1, 1),
    Sketcher.Constraint("Symmetric", 3, 3, 9, 3, -2),
    Sketcher.Constraint("Vertical", 1, 3, 5, 3),
    Sketcher.Constraint("Vertical", 11, 3, 15, 3),
    Sketcher.Constraint("Equal", 6, 8),
    Sketcher.Constraint("DistanceX", 0, 2, 0, 1, Q("0.5 in")),
    Sketcher.Constraint("DistanceY", 1, 3, -1, 1, Q("1 in")),
    Sketcher.Constraint("DistanceX", 3, 3, -1, 1, Q("3 in")),
    Sketcher.Constraint("Radius", 1, Q("0.375 in")),
])
pocket4 = doc.addObject("PartDesign::Pocket", "Pocket003")
body.addObject(pocket4)
pocket4.Profile = sketch8
pocket4.Type = "ThroughAll"
pocket4.Reversed = True

# Sketch on XY plane
sketch9 = doc.addObject("Sketcher::SketchObject", "Sketch008")
body.addObject(sketch9)
sketch9.AttachmentSupport = (doc.XY_Plane, [""])
sketch9.MapMode = "FlatFace"
sketch9.addGeometry([
    Part.Circle(V(-32, 81, 0), V(0, 0, 1), 13),
    Part.Circle(V(32, 81, 0), V(0, 0, 1), 13),
], False)
sketch9.addConstraint([
    Sketcher.Constraint("Equal", 0, 1),
    Sketcher.Constraint("Symmetric", 0, 3, 1, 3, -2),
    Sketcher.Constraint("Diameter", 0, Q("1 in")),
    Sketcher.Constraint("DistanceX", 0, 3, 1, 3, Q("2.5 in")),
    Sketcher.Constraint("DistanceY", -1, 1, 0, 3, Q("3.19 in")),
])
pocket5 = doc.addObject("PartDesign::Pocket", "Pocket004")
body.addObject(pocket5)
pocket5.Profile = sketch9
pocket5.Type = "ThroughAll"
pocket5.Midplane = True
doc.recompute()

chamfer = doc.addObject("PartDesign::Chamfer", "Chamfer")
body.addObject(chamfer)
chamfer.Base = (pocket5, edges_at(pocket5, [
    (-111.125, 6.828, 44.45),
    (180.975, 15.875, -44.45),
    (146.05, 0, -44.45),
    (-111.125, 6.828, -44.45),
    (-146.05, 0, -44.45),
    (104.334, 150.047, 44.45),
    (-104.334, 150.047, -44.45),
    (180.975, 0, 0),
    (111.125, 0, 0),
    (-111.125, 0, 0),
    (-180.975, 0, 0),
    (146.05, 0, 44.45),
    (-180.975, 15.875, 44.45),
    (-180.975, 15.875, -44.45),
    (180.975, 15.875, 44.45),
    (0, 152.4, -44.45),
    (0, 152.4, 44.45),
    (104.334, 150.047, -44.45),
    (-104.334, 150.047, 44.45),
    (111.125, 6.828, -44.45),
    (111.125, 6.828, 44.45),
    (91.318, 50.516, -44.45),
    (91.318, 50.516, 44.45),
    (0, 87.376, -31.75),
    (-31.75, 93.726, -31.75),
    (-45.187, 87.376, 31.75),
    (0, 87.376, -44.45),
    (0, 87.376, 44.45),
    (-31.75, 93.726, 44.45),
    (-31.75, 93.726, 31.75),
    (-31.75, 93.726, -44.45),
    (-53.643, 87.376, -44.45),
    (45.187, 87.376, -31.75),
    (31.75, 93.726, -31.75),
    (-53.643, 87.376, 44.45),
    (0, 87.376, 31.75),
    (53.643, 87.376, -44.45),
    (53.643, 87.376, 44.45),
    (31.75, 93.726, 44.45),
    (31.75, 93.726, 31.75),
    (31.75, 93.726, -44.45),
    (-91.318, 50.516, -44.45),
    (-91.318, 50.516, 44.45),
    (110.8, 16.122, -44.45),
    (110.8, 16.122, 44.45),
    (69.3, 86.1, -44.45),
    (69.3, 86.1, 44.45),
    (-69.3, 86.1, -44.45),
    (-69.3, 86.1, 44.45),
    (-110.8, 16.122, -44.45),
    (-110.8, 16.122, 44.45),
    (-146.05, 0, 44.45),
    (-56.605, 87.376, 28.03),
    (-60.325, 87.376, 0),
    (-56.605, 87.376, -28.03),
    (-45.187, 87.376, -31.75),
    (56.605, 87.376, -28.03),
    (60.325, 87.376, 0),
    (56.605, 87.376, 28.03),
    (45.187, 87.376, 31.75),
]))
chamfer.Size = Q("0.06 in")

# Sketch on YZ plane
sketch10 = doc.addObject("Sketcher::SketchObject", "Sketch009")
body.addObject(sketch10)
sketch10.AttachmentSupport = (doc.YZ_Plane, [""])
sketch10.MapMode = "FlatFace"
add_polygon(sketch10, [(132.14, 0), (152.4, 0), (152.4, 3.05), (152.03, 2.41), (140.97, 2.41), (140.97, 2.02), (133.35, 2.02)])  # lines 0-6
sketch10.addConstraint([
    Sketcher.Constraint("Horizontal", 0),
    Sketcher.Constraint("Vertical", 1),
    Sketcher.Constraint("Horizontal", 3),
    Sketcher.Constraint("Vertical", 4),
    Sketcher.Constraint("Horizontal", 5),
    Sketcher.Constraint("PointOnObject", 0, 2, -1),
    Sketcher.Constraint("DistanceX", 5, 2, 5, 1, Q("0.3 in")),
    Sketcher.Constraint("DistanceX", -1, 1, 0, 2, Q("6 in")),
    Sketcher.Constraint("Angle", 2, Q("-120 deg")),
    Sketcher.Constraint("Angle", 6, Q("-121 deg")),
    Sketcher.Constraint("DistanceY", 1, 1, 1, 2, Q("0.12 in")),
    Sketcher.Constraint("DistanceX", -1, 1, 3, 2, Q("5.55 in")),
    Sketcher.Constraint("DistanceY", 4, 2, 4, 1, Q("0.0155 in")),
    Sketcher.Constraint("DistanceY", -1, 1, 2, 2, Q("0.095 in")),
])
groove4 = doc.addObject("PartDesign::Groove", "Groove003")
body.addObject(groove4)
groove4.Profile = sketch10
groove4.ReferenceAxis = (sketch10, ["H_Axis"])
groove4.Angle = 360

doc.recompute()
